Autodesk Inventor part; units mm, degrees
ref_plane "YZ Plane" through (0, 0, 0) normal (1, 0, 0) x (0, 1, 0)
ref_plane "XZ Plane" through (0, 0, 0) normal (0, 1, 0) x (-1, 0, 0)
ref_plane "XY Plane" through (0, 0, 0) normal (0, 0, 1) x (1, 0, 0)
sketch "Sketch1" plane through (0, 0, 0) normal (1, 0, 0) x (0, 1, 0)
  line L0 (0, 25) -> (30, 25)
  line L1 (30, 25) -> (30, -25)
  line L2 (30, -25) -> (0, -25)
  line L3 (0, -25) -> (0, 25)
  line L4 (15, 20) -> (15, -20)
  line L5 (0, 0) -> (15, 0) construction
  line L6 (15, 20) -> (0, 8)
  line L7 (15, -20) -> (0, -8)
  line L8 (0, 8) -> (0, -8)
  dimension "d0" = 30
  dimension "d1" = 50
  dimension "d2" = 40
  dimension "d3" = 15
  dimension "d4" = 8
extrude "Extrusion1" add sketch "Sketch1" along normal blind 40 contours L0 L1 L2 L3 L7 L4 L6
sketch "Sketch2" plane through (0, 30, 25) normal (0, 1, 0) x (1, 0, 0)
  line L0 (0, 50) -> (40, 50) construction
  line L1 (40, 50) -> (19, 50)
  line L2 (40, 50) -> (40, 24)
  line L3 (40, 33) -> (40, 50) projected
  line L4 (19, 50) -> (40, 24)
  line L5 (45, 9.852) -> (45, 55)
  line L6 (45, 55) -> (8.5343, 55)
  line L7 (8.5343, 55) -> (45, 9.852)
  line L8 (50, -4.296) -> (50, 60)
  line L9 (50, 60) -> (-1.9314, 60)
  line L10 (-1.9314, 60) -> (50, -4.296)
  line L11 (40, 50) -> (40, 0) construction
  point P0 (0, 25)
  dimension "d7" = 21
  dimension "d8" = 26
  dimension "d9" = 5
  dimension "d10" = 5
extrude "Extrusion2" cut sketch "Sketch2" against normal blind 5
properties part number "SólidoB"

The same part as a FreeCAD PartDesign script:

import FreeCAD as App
import Part
import Sketcher
Q = App.Units.Quantity


def add_polygon(sketch, points):
    """Adds a closed chain of lines whose ends are joined by coincident constraints."""
    first, n = sketch.GeometryCount, len(points)
    for a, b in zip(points, points[1:] + points[:1]):
        sketch.addGeometry(Part.LineSegment(App.Vector(*a, 0), App.Vector(*b, 0)), False)
    for i in range(n):
        sketch.addConstraint(Sketcher.Constraint("Coincident", first + i, 2, first + (i + 1) % n, 1))

doc = App.newDocument("Part")
body = doc.addObject("PartDesign::Body", "Body")

sketch1 = body.newObject("Sketcher::SketchObject", "Sketch")
sketch1.AttachmentSupport = (doc.getObject("YZ_Plane"), [""])
sketch1.MapMode = "FlatFace"
add_polygon(sketch1, [(30, 25), (0, 25), (0, 8), (15, 20), (15, -20), (0, -8), (0, -25), (30, -25)])
sketch1.addConstraint([
    Sketcher.Constraint("Horizontal", 0),
    Sketcher.Constraint("Vertical", 1),
    Sketcher.Constraint("Vertical", 3),
    Sketcher.Constraint("Vertical", 5),
    Sketcher.Constraint("Horizontal", 6),
    Sketcher.Constraint("Vertical", 7),
    Sketcher.Constraint("Symmetric", 1, 2, 4, 2, -1, 1),
    Sketcher.Constraint("Symmetric", 0, 2, 5, 2, -1),
    Sketcher.Constraint("Equal", 2, 4),
    Sketcher.Constraint("DistanceX", 0, 2, 0, 1, Q("30 mm")),
    Sketcher.Constraint("DistanceY", 3, 2, 3, 1, Q("40 mm")),
    Sketcher.Constraint("DistanceY", 7, 1, 7, 2, Q("50 mm")),
    Sketcher.Constraint("DistanceY", -1, 1, 1, 2, Q("8 mm")),
    Sketcher.Constraint("DistanceX", -1, 1, 2, 2, Q("15 mm")),
])
pad1 = body.newObject("PartDesign::Pad", "Pad")
pad1.Profile = sketch1
pad1.Length = 40

sketch2 = body.newObject("Sketcher::SketchObject", "Sketch001")
sketch2.AttachmentSupport = (doc.getObject("XZ_Plane"), [""])
sketch2.MapMode = "FlatFace"
sketch2.AttachmentOffset = App.Placement(App.Vector(0, 0, -30), App.Rotation())
add_polygon(sketch2, [(40, 1), (40, -25), (19, -25)])
add_polygon(sketch2, [(-1.9314, -35), (50, 29.296), (50, -35)])
add_polygon(sketch2, [(45, -30), (45, 15.148), (8.5343, -30)])
sketch2.addConstraint([
    Sketcher.Constraint("Vertical", 0),
    Sketcher.Constraint("Horizontal", 1),
    Sketcher.Constraint("Vertical", 4),
    Sketcher.Constraint("Horizontal", 5),
    Sketcher.Constraint("Vertical", 6),
    Sketcher.Constraint("Horizontal", 8),
    Sketcher.Constraint("Parallel", 2, 3),
    Sketcher.Constraint("Parallel", 3, 7),
    Sketcher.Constraint("DistanceX", 1, 2, 1, 1, Q("21 mm")),
    Sketcher.Constraint("DistanceY", 0, 2, 0, 1, Q("26 mm")),
    Sketcher.Constraint("DistanceX", 2, 2, 6, 2, Q("5 mm")),
    Sketcher.Constraint("DistanceX", 6, 2, 3, 2, Q("5 mm")),
    Sketcher.Constraint("DistanceY", 7, 2, 1, 2, Q("5 mm")),
    Sketcher.Constraint("DistanceY", 5, 2, 7, 2, Q("5 mm")),
    Sketcher.Constraint("DistanceX", -1, 1, 0, 2, Q("40 mm")),
    Sketcher.Constraint("DistanceY", 0, 2, -1, 1, Q("25 mm")),
    Sketcher.Constraint("DistanceY", 4, 2, 4, 1, Q("64.296 mm")),
    Sketcher.Constraint("DistanceY", 6, 1, 6, 2, Q("45.148 mm")),
])
pocket1 = body.newObject("PartDesign::Pocket", "Pocket")
pocket1.Profile = sketch2
pocket1.Length = 5
pocket1.Reversed = True

doc.recompute()
